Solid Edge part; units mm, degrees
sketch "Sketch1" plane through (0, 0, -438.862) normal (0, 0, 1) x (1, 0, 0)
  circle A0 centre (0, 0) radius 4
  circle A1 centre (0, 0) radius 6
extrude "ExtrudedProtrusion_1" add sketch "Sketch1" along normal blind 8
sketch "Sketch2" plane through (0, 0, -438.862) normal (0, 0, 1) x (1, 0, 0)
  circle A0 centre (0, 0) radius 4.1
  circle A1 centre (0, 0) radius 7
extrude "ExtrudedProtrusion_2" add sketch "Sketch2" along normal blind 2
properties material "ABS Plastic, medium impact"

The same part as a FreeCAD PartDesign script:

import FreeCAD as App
import Part
import Sketcher

doc = App.newDocument("Part")
params = doc.addObject("Spreadsheet::Sheet", "Params")
for row, (alias, value) in enumerate([
    ("sketch1_diameter", "12 mm"),
    ("sketch1_diameter2", "8 mm"),
    ("pad1_length", "8 mm"),
    ("sketch2_diameter", "14 mm"),
    ("sketch2_diameter2", "8.2 mm"),
    ("pad2_length", "2 mm"),
], start=1):
    params.set(f"A{row}", alias)
    params.set(f"B{row}", "=" + value)
    params.setAlias(f"B{row}", alias)

body = doc.addObject("PartDesign::Body", "Body")

sketch1 = doc.addObject("Sketcher::SketchObject", "Sketch")
body.addObject(sketch1)
sketch1.AttachmentSupport = (doc.XY_Plane, [""])
sketch1.MapMode = "FlatFace"
sketch1.AttachmentOffset = App.Placement(App.Vector(0, 0, -438.862), App.Rotation())
sketch1.addGeometry([
    Part.Circle(App.Vector(0, 0, 0), App.Vector(0, 0, 1), 6),
    Part.Circle(App.Vector(0, 0, 0), App.Vector(0, 0, 1), 4),
], False)
sketch1.addConstraint([
    Sketcher.Constraint("Coincident", 0, 3, -1, 1),
    Sketcher.Constraint("Coincident", 1, 3, -1, 1),
    Sketcher.Constraint("Diameter", 0, 12.0),
    Sketcher.Constraint("Diameter", 1, 8.0),
])
sketch1.setExpression("Constraints[2]", "Params.sketch1_diameter")
sketch1.setExpression("Constraints[3]", "Params.sketch1_diameter2")
pad1 = doc.addObject("PartDesign::Pad", "Pad")
body.addObject(pad1)
pad1.Profile = sketch1
pad1.setExpression("Length", "Params.pad1_length")

sketch2 = doc.addObject("Sketcher::SketchObject", "Sketch001")
body.addObject(sketch2)
sketch2.AttachmentSupport = (doc.XY_Plane, [""])
sketch2.MapMode = "FlatFace"
sketch2.AttachmentOffset = App.Placement(App.Vector(0, 0, -438.862), App.Rotation())
sketch2.addGeometry([
    Part.Circle(App.Vector(0, 0, 0), App.Vector(0, 0, 1), 7),
    Part.Circle(App.Vector(0, 0, 0), App.Vector(0, 0, 1), 4.1),
], False)
sketch2.addConstraint([
    Sketcher.Constraint("Coincident", 0, 3, -1, 1),
    Sketcher.Constraint("Coincident", 1, 3, -1, 1),
    Sketcher.Constraint("Diameter", 0, 14.0),
    Sketcher.Constraint("Diameter", 1, 8.2),
])
sketch2.setExpression("Constraints[2]", "Params.sketch2_diameter")
sketch2.setExpression("Constraints[3]", "Params.sketch2_diameter2")
pad2 = doc.addObject("PartDesign::Pad", "Pad001")
body.addObject(pad2)
pad2.Profile = sketch2
pad2.setExpression("Length", "Params.pad2_length")

doc.recompute()
